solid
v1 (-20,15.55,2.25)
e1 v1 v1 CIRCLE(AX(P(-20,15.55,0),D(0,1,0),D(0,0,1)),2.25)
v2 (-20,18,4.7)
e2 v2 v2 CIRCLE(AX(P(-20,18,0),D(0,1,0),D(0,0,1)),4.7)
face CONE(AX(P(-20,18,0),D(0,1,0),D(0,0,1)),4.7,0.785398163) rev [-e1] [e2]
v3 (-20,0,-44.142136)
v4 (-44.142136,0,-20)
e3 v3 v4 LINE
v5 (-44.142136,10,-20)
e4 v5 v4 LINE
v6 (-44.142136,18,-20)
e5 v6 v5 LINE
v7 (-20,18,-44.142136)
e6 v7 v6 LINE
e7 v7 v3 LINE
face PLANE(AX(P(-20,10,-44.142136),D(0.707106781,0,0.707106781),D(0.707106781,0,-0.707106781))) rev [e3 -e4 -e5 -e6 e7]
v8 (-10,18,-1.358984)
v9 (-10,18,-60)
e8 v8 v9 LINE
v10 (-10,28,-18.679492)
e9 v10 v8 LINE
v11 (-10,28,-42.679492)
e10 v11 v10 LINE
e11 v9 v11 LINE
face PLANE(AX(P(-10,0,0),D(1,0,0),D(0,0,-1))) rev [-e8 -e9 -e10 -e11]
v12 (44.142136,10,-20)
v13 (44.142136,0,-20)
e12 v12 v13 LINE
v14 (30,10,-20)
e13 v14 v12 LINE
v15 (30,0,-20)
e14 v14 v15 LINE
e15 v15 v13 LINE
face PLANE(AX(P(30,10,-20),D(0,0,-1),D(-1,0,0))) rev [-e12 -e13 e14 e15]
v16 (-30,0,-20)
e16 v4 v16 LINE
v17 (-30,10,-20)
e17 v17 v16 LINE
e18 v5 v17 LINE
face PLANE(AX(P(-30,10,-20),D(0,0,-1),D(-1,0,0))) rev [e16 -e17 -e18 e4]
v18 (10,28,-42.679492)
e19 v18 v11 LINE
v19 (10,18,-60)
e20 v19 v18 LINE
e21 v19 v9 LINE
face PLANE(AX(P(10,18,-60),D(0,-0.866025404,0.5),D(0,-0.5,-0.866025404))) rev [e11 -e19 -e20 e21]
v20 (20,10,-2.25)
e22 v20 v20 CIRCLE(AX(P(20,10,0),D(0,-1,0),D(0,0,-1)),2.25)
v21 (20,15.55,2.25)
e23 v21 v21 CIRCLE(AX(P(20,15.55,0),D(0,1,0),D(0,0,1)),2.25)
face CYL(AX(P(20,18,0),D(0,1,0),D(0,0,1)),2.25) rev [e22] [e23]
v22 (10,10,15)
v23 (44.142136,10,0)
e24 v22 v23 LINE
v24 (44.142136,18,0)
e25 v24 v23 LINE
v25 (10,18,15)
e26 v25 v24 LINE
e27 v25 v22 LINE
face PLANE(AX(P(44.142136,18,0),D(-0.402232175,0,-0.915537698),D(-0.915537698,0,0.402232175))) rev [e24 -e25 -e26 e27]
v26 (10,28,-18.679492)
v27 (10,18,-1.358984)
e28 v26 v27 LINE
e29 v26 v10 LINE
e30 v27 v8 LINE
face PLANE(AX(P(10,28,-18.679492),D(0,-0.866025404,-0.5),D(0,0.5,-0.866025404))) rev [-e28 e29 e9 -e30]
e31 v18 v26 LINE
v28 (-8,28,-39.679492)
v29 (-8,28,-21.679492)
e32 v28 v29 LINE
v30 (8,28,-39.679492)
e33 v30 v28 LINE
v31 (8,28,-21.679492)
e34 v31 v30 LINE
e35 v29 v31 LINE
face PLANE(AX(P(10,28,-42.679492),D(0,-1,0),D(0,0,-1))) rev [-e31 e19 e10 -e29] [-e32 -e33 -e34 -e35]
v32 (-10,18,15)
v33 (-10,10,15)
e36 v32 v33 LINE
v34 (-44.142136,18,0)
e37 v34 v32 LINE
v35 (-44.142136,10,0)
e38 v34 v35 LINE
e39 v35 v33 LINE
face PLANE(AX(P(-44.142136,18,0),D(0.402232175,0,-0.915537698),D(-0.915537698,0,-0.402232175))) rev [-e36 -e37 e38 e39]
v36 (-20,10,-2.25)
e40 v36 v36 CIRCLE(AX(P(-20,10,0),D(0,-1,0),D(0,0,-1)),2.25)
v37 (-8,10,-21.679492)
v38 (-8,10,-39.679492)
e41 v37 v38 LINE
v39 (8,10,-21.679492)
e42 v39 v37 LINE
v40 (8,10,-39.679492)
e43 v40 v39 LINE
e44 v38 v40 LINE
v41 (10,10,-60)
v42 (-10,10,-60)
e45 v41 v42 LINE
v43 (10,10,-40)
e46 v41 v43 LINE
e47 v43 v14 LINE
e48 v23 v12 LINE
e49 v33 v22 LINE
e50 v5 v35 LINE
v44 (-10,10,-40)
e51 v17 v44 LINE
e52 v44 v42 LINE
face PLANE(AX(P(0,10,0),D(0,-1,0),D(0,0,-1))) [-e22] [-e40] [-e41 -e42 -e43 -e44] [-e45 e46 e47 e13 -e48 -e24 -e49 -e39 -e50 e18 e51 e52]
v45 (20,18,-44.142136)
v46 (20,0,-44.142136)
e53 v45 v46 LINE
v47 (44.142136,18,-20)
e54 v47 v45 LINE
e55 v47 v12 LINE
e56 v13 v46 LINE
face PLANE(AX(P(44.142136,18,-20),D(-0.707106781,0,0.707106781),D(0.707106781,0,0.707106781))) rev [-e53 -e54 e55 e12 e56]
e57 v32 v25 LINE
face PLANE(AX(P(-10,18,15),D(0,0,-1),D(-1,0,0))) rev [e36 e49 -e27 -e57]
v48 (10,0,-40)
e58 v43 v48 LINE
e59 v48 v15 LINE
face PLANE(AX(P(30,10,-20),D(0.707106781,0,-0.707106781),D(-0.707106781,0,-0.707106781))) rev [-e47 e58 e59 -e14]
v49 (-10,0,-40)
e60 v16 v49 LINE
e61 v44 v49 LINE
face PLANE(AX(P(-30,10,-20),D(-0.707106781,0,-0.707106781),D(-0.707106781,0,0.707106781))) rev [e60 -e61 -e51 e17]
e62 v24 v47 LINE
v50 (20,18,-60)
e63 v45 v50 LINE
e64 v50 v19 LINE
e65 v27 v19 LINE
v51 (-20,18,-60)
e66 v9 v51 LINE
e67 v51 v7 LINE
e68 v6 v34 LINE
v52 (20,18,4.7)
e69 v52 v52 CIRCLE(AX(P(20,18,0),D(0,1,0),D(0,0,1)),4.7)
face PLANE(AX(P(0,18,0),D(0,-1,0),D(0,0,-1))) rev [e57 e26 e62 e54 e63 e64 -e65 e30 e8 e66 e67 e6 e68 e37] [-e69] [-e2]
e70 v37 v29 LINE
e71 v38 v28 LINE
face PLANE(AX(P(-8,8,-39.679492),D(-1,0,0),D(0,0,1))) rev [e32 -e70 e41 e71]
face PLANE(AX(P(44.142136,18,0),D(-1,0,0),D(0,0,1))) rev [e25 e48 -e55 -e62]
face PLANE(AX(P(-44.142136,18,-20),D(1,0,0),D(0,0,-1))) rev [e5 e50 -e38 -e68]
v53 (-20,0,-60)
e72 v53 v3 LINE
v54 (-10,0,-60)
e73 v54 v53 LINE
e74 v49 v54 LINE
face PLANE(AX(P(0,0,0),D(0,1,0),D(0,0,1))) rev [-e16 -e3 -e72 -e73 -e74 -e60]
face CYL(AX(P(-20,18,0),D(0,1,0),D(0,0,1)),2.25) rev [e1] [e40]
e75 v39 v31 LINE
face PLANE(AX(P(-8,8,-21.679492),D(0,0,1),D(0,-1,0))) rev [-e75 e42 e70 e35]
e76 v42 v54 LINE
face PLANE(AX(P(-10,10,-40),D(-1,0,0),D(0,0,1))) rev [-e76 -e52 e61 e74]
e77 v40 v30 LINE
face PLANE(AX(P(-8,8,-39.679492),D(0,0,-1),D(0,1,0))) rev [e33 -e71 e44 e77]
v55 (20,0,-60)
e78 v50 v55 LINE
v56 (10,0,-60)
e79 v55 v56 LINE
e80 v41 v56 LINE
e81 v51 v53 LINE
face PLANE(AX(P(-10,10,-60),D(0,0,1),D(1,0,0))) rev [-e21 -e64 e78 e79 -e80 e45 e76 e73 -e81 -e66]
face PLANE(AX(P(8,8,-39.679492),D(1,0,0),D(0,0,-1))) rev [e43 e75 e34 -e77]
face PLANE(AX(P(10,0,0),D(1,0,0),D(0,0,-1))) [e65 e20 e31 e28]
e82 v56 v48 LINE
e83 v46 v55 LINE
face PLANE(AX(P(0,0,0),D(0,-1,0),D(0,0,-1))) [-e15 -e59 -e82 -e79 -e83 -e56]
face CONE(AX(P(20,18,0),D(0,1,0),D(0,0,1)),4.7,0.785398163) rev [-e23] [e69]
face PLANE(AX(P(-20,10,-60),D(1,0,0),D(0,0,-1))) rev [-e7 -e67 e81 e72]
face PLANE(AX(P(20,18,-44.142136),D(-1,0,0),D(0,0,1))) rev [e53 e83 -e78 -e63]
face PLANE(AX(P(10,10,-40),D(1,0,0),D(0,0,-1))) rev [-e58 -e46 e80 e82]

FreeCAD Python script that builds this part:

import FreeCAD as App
import Part
import Sketcher

V = App.Vector
Q = App.Units.Quantity

doc = App.newDocument("Part")
body = doc.addObject("PartDesign::Body", "Body")

sketch1 = doc.addObject("Sketcher::SketchObject", "Sketch")
body.addObject(sketch1)
sketch1.AttachmentSupport = (doc.XZ_Plane, [""])
sketch1.MapMode = "FlatFace"
sketch1.addGeometry([
    Part.LineSegment(V(-44.142136, -20, 0), V(-30, -20, 0)),
    Part.LineSegment(V(-30, -20, 0), V(-10, -40, 0)),
    Part.LineSegment(V(-10, -40, 0), V(-10, -60, 0)),
    Part.LineSegment(V(-10, -60, 0), V(-20, -60, 0)),
    Part.LineSegment(V(-20, -60, 0), V(-20, -44.142136, 0)),
    Part.LineSegment(V(-20, -44.142136, 0), V(-44.142136, -20, 0)),
], False)
sketch1.addConstraint([
    Sketcher.Constraint("Coincident", 0, 2, 1, 1),
    Sketcher.Constraint("Coincident", 1, 2, 2, 1),
    Sketcher.Constraint("Coincident", 2, 2, 3, 1),
    Sketcher.Constraint("Coincident", 3, 2, 4, 1),
    Sketcher.Constraint("Coincident", 4, 2, 5, 1),
    Sketcher.Constraint("Coincident", 5, 2, 0, 1),
    Sketcher.Constraint("Horizontal", 0),
    Sketcher.Constraint("Vertical", 2),
    Sketcher.Constraint("Horizontal", 3),
    Sketcher.Constraint("Vertical", 4),
    Sketcher.Constraint("Parallel", 1, 5),
    Sketcher.Constraint("DistanceX", 3, 2, 3, 1, Q("10 mm")),
    Sketcher.Constraint("DistanceY", 2, 2, 2, 1, Q("20 mm")),
    Sketcher.Constraint("Angle", 1, Q("-45 deg")),
    Sketcher.Constraint("DistanceX", 0, 2, -1, 1, Q("30 mm")),
    Sketcher.Constraint("DistanceY", 0, 2, -1, 1, Q("20 mm")),
    Sketcher.Constraint("DistanceX", 1, 2, -1, 1, Q("10 mm")),
    Sketcher.Constraint("DistanceX", 0, 1, 0, 2, Q("14.142136 mm")),
])
pad1 = doc.addObject("PartDesign::Pad", "Pad")
body.addObject(pad1)
pad1.Profile = sketch1
pad1.Length = 10
pad1.Reversed = True
body2 = doc.addObject("PartDesign::Body", "Body001")

sketch2 = doc.addObject("Sketcher::SketchObject", "Sketch001")
body2.addObject(sketch2)
sketch2.AttachmentSupport = (doc.getObject("XZ_Plane001"), [""])
sketch2.MapMode = "FlatFace"
sketch2.addGeometry([
    Part.LineSegment(V(10, -40, 0), V(30, -20, 0)),
    Part.LineSegment(V(30, -20, 0), V(44.142136, -20, 0)),
    Part.LineSegment(V(44.142136, -20, 0), V(20, -44.142136, 0)),
    Part.LineSegment(V(20, -44.142136, 0), V(20, -60, 0)),
    Part.LineSegment(V(20, -60, 0), V(10, -60, 0)),
    Part.LineSegment(V(10, -60, 0), V(10, -40, 0)),
], False)
sketch2.addConstraint([
    Sketcher.Constraint("Coincident", 0, 2, 1, 1),
    Sketcher.Constraint("Coincident", 1, 2, 2, 1),
    Sketcher.Constraint("Coincident", 2, 2, 3, 1),
    Sketcher.Constraint("Coincident", 3, 2, 4, 1),
    Sketcher.Constraint("Coincident", 4, 2, 5, 1),
    Sketcher.Constraint("Coincident", 5, 2, 0, 1),
    Sketcher.Constraint("Horizontal", 1),
    Sketcher.Constraint("Vertical", 3),
    Sketcher.Constraint("Horizontal", 4),
    Sketcher.Constraint("Vertical", 5),
    Sketcher.Constraint("Parallel", 0, 2),
    Sketcher.Constraint("DistanceX", 4, 2, 4, 1, Q("10 mm")),
    Sketcher.Constraint("DistanceY", 5, 1, 5, 2, Q("20 mm")),
    Sketcher.Constraint("Angle", 0, Q("45 deg")),
    Sketcher.Constraint("DistanceX", -1, 1, 0, 2, Q("30 mm")),
    Sketcher.Constraint("DistanceY", 0, 2, -1, 1, Q("20 mm")),
    Sketcher.Constraint("DistanceX", -1, 1, 2, 2, Q("20 mm")),
    Sketcher.Constraint("DistanceX", 1, 1, 1, 2, Q("14.142136 mm")),
])
pad2 = doc.addObject("PartDesign::Pad", "Pad001")
body2.addObject(pad2)
pad2.Profile = sketch2
pad2.Length = 10
pad2.Reversed = True
body.AllowCompound = True
doc.recompute()

boolean = doc.addObject("PartDesign::Boolean", "Boolean")
body.addObject(boolean)
boolean.Type = "Fuse"
boolean.addObjects([body2])

sketch3 = doc.addObject("Sketcher::SketchObject", "Sketch002")
body.addObject(sketch3)
sketch3.AttachmentSupport = (doc.XZ_Plane, [""])
sketch3.MapMode = "FlatFace"
sketch3.AttachmentOffset = App.Placement(V(0, 0, -10), App.Rotation())
sketch3.addGeometry([
    Part.LineSegment(V(44.142136, -20, 0), V(20, -44.142136, 0)),
    Part.LineSegment(V(20, -44.142136, 0), V(20, -60, 0)),
    Part.LineSegment(V(20, -60, 0), V(-20, -60, 0)),
    Part.LineSegment(V(-20, -60, 0), V(-20, -44.142136, 0)),
    Part.LineSegment(V(-20, -44.142136, 0), V(-44.142136, -20, 0)),
    Part.LineSegment(V(-44.142136, -20, 0), V(-44.142136, 0, 0)),
    Part.LineSegment(V(-44.142136, 0, 0), V(-10, 15, 0)),
    Part.LineSegment(V(-10, 15, 0), V(10, 15, 0)),
    Part.LineSegment(V(10, 15, 0), V(44.142136, 0, 0)),
    Part.LineSegment(V(44.142136, 0, 0), V(44.142136, -20, 0)),
], False)
sketch3.addConstraint([
    Sketcher.Constraint("Coincident", 0, 2, 1, 1),
    Sketcher.Constraint("Coincident", 1, 2, 2, 1),
    Sketcher.Constraint("Coincident", 2, 2, 3, 1),
    Sketcher.Constraint("Coincident", 3, 2, 4, 1),
    Sketcher.Constraint("Coincident", 4, 2, 5, 1),
    Sketcher.Constraint("Coincident", 5, 2, 6, 1),
    Sketcher.Constraint("Coincident", 6, 2, 7, 1),
    Sketcher.Constraint("Coincident", 7, 2, 8, 1),
    Sketcher.Constraint("Coincident", 8, 2, 9, 1),
    Sketcher.Constraint("Coincident", 9, 2, 0, 1),
    Sketcher.Constraint("Vertical", 1),
    Sketcher.Constraint("Horizontal", 2),
    Sketcher.Constraint("Vertical", 3),
    Sketcher.Constraint("Vertical", 5),
    Sketcher.Constraint("Horizontal", 7),
    Sketcher.Constraint("Vertical", 9),
    Sketcher.Constraint("Symmetric", 5, 2, 8, 2, -1, 1),
    Sketcher.Constraint("Symmetric", 0, 2, 3, 2, -2),
    Sketcher.Constraint("PointOnObject", 5, 2, -1),
    Sketcher.Constraint("Perpendicular", 0, 4),
    Sketcher.Constraint("Horizontal", 4, 2, 9, 2),
    Sketcher.Constraint("Equal", 7, 5),
    Sketcher.Constraint("Equal", 6, 8),
    Sketcher.Constraint("DistanceX", 2, 2, 2, 1, Q("40 mm")),
    Sketcher.Constraint("DistanceX", 7, 1, 7, 2, Q("20 mm")),
    Sketcher.Constraint("DistanceY", 1, 2, -1, 1, Q("60 mm")),
    Sketcher.Constraint("DistanceY", -1, 1, 6, 2, Q("15 mm")),
    Sketcher.Constraint("DistanceY", 1, 2, 1, 1, Q("15.857864 mm")),
])
pad3 = doc.addObject("PartDesign::Pad", "Pad002")
body.addObject(pad3)
pad3.Profile = sketch3
pad3.Length = 8
pad3.Reversed = True

sketch4 = doc.addObject("Sketcher::SketchObject", "Sketch003")
body.addObject(sketch4)
sketch4.AttachmentSupport = (doc.XZ_Plane, [""])
sketch4.MapMode = "FlatFace"
sketch4.AttachmentOffset = App.Placement(V(0, 0, -18), App.Rotation())
sketch4.addGeometry([
    Part.Circle(V(-20, 0, 0), V(0, 0, 1), 2.25),
    Part.Circle(V(20, 0, 0), V(0, 0, 1), 2.25),
], False)
sketch4.addConstraint([
    Sketcher.Constraint("Equal", 0, 1),
    Sketcher.Constraint("Symmetric", 0, 3, 1, 3, -1, 1),
    Sketcher.Constraint("PointOnObject", 0, 3, -1),
    Sketcher.Constraint("Diameter", 0, Q("4.5 mm")),
    Sketcher.Constraint("DistanceX", 0, 3, -1, 1, Q("20 mm")),
])
doc.recompute()
hole = doc.addObject("PartDesign::Hole", "Hole")
body.addObject(hole)
hole.Profile = sketch4
hole.ThreadType = "None"
hole.Diameter = 4.5
hole.DepthType = "ThroughAll"
hole.HoleCutType = "Countersink"
hole.HoleCutDiameter = 9.4
hole.HoleCutCountersinkAngle = 90
hole.Reversed = True

sketch5 = doc.addObject("Sketcher::SketchObject", "Sketch004")
body.addObject(sketch5)
sketch5.AttachmentSupport = (doc.YZ_Plane, [""])
sketch5.MapMode = "FlatFace"
sketch5.addGeometry([
    Part.LineSegment(V(18, -60, 0), V(28, -42.679492, 0)),
    Part.LineSegment(V(28, -42.679492, 0), V(28, -18.679492, 0)),
    Part.LineSegment(V(28, -18.679492, 0), V(18, -1.358984, 0)),
    Part.LineSegment(V(18, -1.358984, 0), V(18, -60, 0)),
], False)
sketch5.addConstraint([
    Sketcher.Constraint("Coincident", 0, 2, 1, 1),
    Sketcher.Constraint("Coincident", 1, 2, 2, 1),
    Sketcher.Constraint("Coincident", 2, 2, 3, 1),
    Sketcher.Constraint("Coincident", 3, 2, 0, 1),
    Sketcher.Constraint("Vertical", 1),
    Sketcher.Constraint("Vertical", 3),
    Sketcher.Constraint("Equal", 0, 2),
    Sketcher.Constraint("DistanceY", 1, 1, 1, 2, Q("24 mm")),
    Sketcher.Constraint("Angle", 0, Q("60 deg")),
    Sketcher.Constraint("Distance", 0, Q("20 mm")),
    Sketcher.Constraint("DistanceX", -1, 1, 0, 2, Q("28 mm")),
    Sketcher.Constraint("DistanceY", 3, 2, -1, 1, Q("60 mm")),
])
pad4 = doc.addObject("PartDesign::Pad", "Pad003")
body.addObject(pad4)
pad4.Profile = sketch5
pad4.Length = 20
pad4.Midplane = True

sketch6 = doc.addObject("Sketcher::SketchObject", "Sketch005")
body.addObject(sketch6)
sketch6.AttachmentSupport = (doc.XZ_Plane, [""])
sketch6.MapMode = "FlatFace"
sketch6.AttachmentOffset = App.Placement(V(0, 0, -28), App.Rotation())
sketch6.addGeometry([
    Part.LineSegment(V(-8, -39.679492, 0), V(-8, -21.679492, 0)),
    Part.LineSegment(V(-8, -21.679492, 0), V(8, -21.679492, 0)),
    Part.LineSegment(V(8, -21.679492, 0), V(8, -39.679492, 0)),
    Part.LineSegment(V(8, -39.679492, 0), V(-8, -39.679492, 0)),
], False)
sketch6.addConstraint([
    Sketcher.Constraint("Coincident", 0, 2, 1, 1),
    Sketcher.Constraint("Coincident", 1, 2, 2, 1),
    Sketcher.Constraint("Coincident", 2, 2, 3, 1),
    Sketcher.Constraint("Coincident", 3, 2, 0, 1),
    Sketcher.Constraint("Vertical", 0),
    Sketcher.Constraint("Horizontal", 1),
    Sketcher.Constraint("Vertical", 2),
    Sketcher.Constraint("Horizontal", 3),
    Sketcher.Constraint("DistanceX", 1, 1, 1, 2, Q("16 mm")),
    Sketcher.Constraint("DistanceY", 0, 1, 0, 2, Q("18 mm")),
    Sketcher.Constraint("DistanceX", 0, 2, -1, 1, Q("8 mm")),
    Sketcher.Constraint("DistanceY", 0, 2, -1, 1, Q("21.679492 mm")),
])
pocket1 = doc.addObject("PartDesign::Pocket", "Pocket")
body.addObject(pocket1)
pocket1.Profile = sketch6
pocket1.Length = 20
pocket1.Reversed = True

doc.recompute()
